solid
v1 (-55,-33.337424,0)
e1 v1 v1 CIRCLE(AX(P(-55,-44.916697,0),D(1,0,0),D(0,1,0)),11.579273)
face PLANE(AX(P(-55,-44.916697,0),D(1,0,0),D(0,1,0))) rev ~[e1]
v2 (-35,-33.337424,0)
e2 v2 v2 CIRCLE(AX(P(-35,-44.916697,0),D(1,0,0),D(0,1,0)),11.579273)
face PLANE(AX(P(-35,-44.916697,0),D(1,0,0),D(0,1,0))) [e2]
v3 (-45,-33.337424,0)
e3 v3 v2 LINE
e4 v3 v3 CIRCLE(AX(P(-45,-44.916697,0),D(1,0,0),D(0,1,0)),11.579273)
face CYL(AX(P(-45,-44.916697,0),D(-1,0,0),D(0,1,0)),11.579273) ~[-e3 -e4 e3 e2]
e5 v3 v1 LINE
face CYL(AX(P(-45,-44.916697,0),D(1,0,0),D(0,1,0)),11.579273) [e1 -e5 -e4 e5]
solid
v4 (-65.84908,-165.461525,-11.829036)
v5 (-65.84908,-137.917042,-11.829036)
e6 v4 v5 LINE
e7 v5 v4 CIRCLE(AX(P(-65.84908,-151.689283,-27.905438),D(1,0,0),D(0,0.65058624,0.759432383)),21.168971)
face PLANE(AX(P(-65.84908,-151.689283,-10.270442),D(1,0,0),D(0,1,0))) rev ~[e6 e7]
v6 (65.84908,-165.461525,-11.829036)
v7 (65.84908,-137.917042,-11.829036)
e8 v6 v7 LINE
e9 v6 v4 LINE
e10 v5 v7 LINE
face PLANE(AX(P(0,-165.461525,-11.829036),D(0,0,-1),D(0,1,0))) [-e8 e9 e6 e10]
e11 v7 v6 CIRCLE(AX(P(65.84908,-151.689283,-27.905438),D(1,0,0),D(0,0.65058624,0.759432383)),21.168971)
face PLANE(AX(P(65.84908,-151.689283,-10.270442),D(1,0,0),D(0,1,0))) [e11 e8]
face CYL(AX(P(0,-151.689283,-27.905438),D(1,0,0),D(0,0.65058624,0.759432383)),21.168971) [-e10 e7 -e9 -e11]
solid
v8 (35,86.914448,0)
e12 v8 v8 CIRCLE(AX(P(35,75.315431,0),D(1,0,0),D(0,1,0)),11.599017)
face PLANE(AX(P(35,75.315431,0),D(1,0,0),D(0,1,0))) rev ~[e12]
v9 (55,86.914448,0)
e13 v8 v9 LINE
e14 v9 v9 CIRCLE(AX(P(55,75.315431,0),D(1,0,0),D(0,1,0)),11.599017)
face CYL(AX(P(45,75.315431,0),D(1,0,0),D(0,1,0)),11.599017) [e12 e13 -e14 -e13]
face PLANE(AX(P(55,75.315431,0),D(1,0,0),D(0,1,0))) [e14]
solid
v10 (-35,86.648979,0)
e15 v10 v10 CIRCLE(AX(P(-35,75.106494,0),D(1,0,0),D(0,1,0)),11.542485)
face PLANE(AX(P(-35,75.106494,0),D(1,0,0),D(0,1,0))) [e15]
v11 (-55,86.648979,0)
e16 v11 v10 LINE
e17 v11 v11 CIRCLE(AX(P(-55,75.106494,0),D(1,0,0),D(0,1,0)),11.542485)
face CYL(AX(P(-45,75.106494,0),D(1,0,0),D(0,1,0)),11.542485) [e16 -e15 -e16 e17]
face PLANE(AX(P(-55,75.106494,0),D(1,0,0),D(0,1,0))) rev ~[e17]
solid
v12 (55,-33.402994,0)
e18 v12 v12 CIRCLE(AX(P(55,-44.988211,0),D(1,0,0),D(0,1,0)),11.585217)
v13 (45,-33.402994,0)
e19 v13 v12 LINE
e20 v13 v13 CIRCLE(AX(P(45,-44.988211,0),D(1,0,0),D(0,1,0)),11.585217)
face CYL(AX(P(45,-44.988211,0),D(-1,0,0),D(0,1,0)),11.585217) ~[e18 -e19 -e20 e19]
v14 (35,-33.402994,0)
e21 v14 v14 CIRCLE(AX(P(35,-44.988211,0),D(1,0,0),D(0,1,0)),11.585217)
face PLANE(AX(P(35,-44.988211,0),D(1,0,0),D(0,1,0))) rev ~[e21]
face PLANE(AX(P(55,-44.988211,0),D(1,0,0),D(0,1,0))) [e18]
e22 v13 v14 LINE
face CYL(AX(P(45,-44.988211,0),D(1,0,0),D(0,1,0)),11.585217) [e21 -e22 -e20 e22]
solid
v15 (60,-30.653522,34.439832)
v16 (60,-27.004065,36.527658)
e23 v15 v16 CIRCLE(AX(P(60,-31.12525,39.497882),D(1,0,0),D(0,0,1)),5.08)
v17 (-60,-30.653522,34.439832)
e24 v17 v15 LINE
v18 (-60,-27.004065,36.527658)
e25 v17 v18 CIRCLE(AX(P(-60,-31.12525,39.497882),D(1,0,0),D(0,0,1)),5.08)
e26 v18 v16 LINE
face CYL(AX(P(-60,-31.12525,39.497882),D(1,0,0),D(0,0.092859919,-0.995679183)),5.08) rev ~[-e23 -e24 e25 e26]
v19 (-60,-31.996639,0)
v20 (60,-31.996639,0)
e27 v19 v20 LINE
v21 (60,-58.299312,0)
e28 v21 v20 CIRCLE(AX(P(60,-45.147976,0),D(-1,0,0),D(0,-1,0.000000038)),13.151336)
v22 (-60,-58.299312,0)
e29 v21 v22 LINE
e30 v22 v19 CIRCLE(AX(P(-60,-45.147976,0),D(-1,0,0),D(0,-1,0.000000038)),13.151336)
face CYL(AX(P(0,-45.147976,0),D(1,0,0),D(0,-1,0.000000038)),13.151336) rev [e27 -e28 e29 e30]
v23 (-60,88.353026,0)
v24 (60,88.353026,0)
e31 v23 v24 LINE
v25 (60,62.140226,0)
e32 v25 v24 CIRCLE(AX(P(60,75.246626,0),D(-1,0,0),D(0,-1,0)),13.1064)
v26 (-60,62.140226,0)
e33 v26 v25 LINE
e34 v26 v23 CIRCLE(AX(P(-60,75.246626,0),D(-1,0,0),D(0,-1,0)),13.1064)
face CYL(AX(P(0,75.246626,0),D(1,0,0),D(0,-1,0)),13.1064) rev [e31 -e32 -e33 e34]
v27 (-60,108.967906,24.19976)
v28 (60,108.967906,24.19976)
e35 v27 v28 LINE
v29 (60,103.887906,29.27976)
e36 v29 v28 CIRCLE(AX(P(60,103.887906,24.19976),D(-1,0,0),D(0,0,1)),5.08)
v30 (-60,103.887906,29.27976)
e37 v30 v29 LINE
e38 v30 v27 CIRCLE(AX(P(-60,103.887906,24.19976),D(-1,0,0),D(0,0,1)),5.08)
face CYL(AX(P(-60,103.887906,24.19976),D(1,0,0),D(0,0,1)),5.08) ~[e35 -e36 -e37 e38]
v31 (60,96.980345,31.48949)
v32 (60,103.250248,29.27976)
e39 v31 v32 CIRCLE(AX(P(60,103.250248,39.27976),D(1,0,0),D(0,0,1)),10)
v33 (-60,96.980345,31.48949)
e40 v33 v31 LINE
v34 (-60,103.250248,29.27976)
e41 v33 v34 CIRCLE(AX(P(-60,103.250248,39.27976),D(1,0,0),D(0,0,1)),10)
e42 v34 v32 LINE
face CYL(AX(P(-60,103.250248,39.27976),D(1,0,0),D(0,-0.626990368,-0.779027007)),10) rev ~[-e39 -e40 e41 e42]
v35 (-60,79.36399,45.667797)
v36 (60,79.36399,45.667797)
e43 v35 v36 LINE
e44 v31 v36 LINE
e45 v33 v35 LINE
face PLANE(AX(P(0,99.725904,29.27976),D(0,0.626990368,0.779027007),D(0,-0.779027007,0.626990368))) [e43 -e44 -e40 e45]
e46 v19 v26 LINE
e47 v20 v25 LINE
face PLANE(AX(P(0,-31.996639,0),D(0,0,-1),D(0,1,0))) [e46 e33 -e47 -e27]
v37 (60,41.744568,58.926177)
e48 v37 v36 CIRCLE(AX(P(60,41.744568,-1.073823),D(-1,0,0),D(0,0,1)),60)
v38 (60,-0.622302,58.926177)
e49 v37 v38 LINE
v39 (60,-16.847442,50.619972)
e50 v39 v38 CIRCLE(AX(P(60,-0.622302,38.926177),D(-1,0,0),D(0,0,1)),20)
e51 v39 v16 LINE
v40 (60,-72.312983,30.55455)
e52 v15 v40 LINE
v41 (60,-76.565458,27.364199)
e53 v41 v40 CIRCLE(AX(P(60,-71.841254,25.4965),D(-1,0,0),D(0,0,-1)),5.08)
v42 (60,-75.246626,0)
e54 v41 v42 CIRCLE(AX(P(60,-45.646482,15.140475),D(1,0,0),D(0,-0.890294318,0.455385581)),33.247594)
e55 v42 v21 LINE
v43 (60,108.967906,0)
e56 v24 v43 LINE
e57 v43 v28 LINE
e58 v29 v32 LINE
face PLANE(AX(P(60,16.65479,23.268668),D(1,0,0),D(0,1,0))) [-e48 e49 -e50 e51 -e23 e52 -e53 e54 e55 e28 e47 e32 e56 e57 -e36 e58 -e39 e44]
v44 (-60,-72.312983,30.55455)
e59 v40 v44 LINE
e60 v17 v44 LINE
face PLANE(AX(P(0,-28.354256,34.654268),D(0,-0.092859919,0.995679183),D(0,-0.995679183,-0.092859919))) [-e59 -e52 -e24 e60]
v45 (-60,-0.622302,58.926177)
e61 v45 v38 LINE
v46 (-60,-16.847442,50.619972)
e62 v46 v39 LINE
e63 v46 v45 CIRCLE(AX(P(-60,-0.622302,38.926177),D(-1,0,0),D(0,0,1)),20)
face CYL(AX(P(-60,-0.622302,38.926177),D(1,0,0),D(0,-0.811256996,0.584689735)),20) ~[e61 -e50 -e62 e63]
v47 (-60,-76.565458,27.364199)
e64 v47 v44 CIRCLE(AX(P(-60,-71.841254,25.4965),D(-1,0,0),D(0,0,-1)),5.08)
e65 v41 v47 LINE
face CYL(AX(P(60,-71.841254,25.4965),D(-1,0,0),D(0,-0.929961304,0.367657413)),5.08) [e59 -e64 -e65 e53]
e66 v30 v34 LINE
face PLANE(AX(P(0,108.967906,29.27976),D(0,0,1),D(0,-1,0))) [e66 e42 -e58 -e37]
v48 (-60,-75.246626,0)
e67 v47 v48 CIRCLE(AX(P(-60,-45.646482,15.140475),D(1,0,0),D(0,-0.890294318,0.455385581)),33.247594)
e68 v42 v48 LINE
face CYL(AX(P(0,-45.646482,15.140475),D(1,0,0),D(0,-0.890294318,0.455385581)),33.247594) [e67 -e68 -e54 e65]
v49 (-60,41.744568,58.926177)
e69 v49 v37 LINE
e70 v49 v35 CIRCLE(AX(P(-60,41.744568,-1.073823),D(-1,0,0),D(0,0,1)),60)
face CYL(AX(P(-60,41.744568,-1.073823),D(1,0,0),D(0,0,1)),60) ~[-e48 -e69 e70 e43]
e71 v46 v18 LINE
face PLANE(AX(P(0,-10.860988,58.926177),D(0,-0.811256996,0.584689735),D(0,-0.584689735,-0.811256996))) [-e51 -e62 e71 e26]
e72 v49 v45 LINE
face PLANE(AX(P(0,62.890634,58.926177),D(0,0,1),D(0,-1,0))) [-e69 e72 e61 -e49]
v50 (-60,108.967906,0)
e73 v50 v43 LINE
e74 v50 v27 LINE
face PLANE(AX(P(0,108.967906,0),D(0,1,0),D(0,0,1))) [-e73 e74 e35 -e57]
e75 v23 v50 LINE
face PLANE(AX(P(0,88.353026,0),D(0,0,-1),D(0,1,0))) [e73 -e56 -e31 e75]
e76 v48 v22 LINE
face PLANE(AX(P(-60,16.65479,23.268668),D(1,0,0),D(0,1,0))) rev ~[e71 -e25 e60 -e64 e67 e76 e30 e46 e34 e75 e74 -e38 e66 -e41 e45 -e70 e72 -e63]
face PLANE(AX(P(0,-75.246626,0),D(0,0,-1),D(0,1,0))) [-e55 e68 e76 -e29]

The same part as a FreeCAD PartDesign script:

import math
import FreeCAD as App
import Part
import Sketcher

V = App.Vector
Q = App.Units.Quantity


def edges_at(feature, points):
    """Names of the edges that pass closest to the given points."""
    edges = feature.Shape.Edges
    near = lambda p: min(range(len(edges)), key=lambda i: edges[i].distToShape(Part.Vertex(*p))[0])
    return sorted({f"Edge{near(p) + 1}" for p in points})

doc = App.newDocument("Part")
body = doc.addObject("PartDesign::Body", "Body")

sketch1 = body.newObject("Sketcher::SketchObject", "Sketch")
sketch1.AttachmentSupport = (doc.getObject("YZ_Plane"), [""])
sketch1.MapMode = "FlatFace"
sketch1.addGeometry([
    Part.ArcOfCircle(Part.Circle(V(-45.147976, 0, 0), V(0, 0, 1), 13.151336), math.radians(0.000002), math.radians(179.999998)),
    Part.LineSegment(V(-31.996639, 0, 0), V(62.140226, 0, 0)),
    Part.ArcOfCircle(Part.Circle(V(75.246626, 0, 0), V(0, 0, 1), 13.1064), math.radians(0), math.radians(180)),
    Part.LineSegment(V(88.353026, 0, 0), V(108.967906, 0, 0)),
    Part.LineSegment(V(108.967906, 0, 0), V(108.967906, 29.27976, 0)),
    Part.LineSegment(V(108.967906, 29.27976, 0), V(99.725904, 29.27976, 0)),
    Part.LineSegment(V(99.725904, 29.27976, 0), V(62.890634, 58.926177, 0)),
    Part.LineSegment(V(62.890634, 58.926177, 0), V(-10.860988, 58.926177, 0)),
    Part.LineSegment(V(-10.860988, 58.926177, 0), V(-28.354256, 34.654268, 0)),
    Part.LineSegment(V(-28.354256, 34.654268, 0), V(-75.246626, 30.28095, 0)),
    Part.ArcOfCircle(Part.Circle(V(-45.646482, 15.140475, 0), V(0, 0, 1), 33.247594), math.radians(152.910254), math.radians(207.089746)),
    Part.LineSegment(V(-75.246626, 0, 0), V(-58.299312, 0, 0)),
], False)
sketch1.addConstraint([
    Sketcher.Constraint("Coincident", 0, 1, 1, 1),
    Sketcher.Constraint("Coincident", 1, 2, 2, 2),
    Sketcher.Constraint("Coincident", 2, 1, 3, 1),
    Sketcher.Constraint("Coincident", 3, 2, 4, 1),
    Sketcher.Constraint("Coincident", 4, 2, 5, 1),
    Sketcher.Constraint("Coincident", 5, 2, 6, 1),
    Sketcher.Constraint("Coincident", 6, 2, 7, 1),
    Sketcher.Constraint("Coincident", 7, 2, 8, 1),
    Sketcher.Constraint("Coincident", 8, 2, 9, 1),
    Sketcher.Constraint("Coincident", 9, 2, 10, 1),
    Sketcher.Constraint("Coincident", 10, 2, 11, 1),
    Sketcher.Constraint("Coincident", 11, 2, 0, 2),
    Sketcher.Constraint("Horizontal", 1),
    Sketcher.Constraint("Horizontal", 3),
    Sketcher.Constraint("Vertical", 4),
    Sketcher.Constraint("Horizontal", 5),
    Sketcher.Constraint("Horizontal", 7),
    Sketcher.Constraint("Horizontal", 11),
    Sketcher.Constraint("PointOnObject", 0, 3, -1),
    Sketcher.Constraint("PointOnObject", 2, 3, -1),
    Sketcher.Constraint("PointOnObject", 0, 1, -1),
    Sketcher.Constraint("PointOnObject", 2, 1, -1),
    Sketcher.Constraint("PointOnObject", 10, 2, -1),
    Sketcher.Constraint("Vertical", 9, 2, 10, 2),
    Sketcher.Constraint("Radius", 2, Q("13.1064 mm")),
    Sketcher.Constraint("DistanceX", 5, 2, 5, 1, Q("9.242002 mm")),
    Sketcher.Constraint("Radius", 0, Q("13.151336 mm")),
    Sketcher.Constraint("Radius", 10, Q("33.247594 mm")),
    Sketcher.Constraint("DistanceX", 0, 3, 2, 1, Q("133.501002 mm")),
    Sketcher.Constraint("DistanceX", 3, 1, 3, 2, Q("20.61488 mm")),
    Sketcher.Constraint("DistanceX", 7, 2, 7, 1, Q("73.751622 mm")),
    Sketcher.Constraint("DistanceY", 4, 1, 4, 2, Q("29.27976 mm")),
    Sketcher.Constraint("Distance", 6, Q("47.283688 mm")),
    Sketcher.Constraint("Distance", 8, Q("29.91889 mm")),
    Sketcher.Constraint("DistanceX", 11, 1, 11, 2, Q("16.947314 mm")),
    Sketcher.Constraint("DistanceX", 10, 3, -1, 1, Q("45.646482 mm")),
    Sketcher.Constraint("DistanceX", 0, 1, -1, 1, Q("31.996639 mm")),
    Sketcher.Constraint("DistanceX", 7, 2, -1, 1, Q("10.860988 mm")),
    Sketcher.Constraint("DistanceY", -1, 1, 8, 2, Q("34.654268 mm")),
])
pad1 = body.newObject("PartDesign::Pad", "Pad")
pad1.Profile = sketch1
pad1.Length = 120
pad1.Midplane = True
doc.recompute()

fillet = body.newObject("PartDesign::Fillet", "Fillet")
fillet.Base = (pad1, edges_at(pad1, [(0, -75.247, 30.281), (0, -28.354, 34.654)]))
fillet.Radius = 5.08
doc.recompute()

fillet2 = body.newObject("PartDesign::Fillet", "Fillet001")
fillet2.Base = (fillet, edges_at(fillet, [(0, -10.861, 58.926)]))
fillet2.Radius = 20
doc.recompute()

fillet3 = body.newObject("PartDesign::Fillet", "Fillet002")
fillet3.Base = (fillet2, edges_at(fillet2, [(0, 62.891, 58.926)]))
fillet3.Radius = 60
doc.recompute()

fillet4 = body.newObject("PartDesign::Fillet", "Fillet003")
fillet4.Base = (fillet3, edges_at(fillet3, [(0, 99.726, 29.28)]))
fillet4.Radius = 10
doc.recompute()

fillet5 = body.newObject("PartDesign::Fillet", "Fillet004")
fillet5.Base = (fillet4, edges_at(fillet4, [(0, 108.968, 29.28)]))
fillet5.Radius = 5.08
body2 = doc.addObject("PartDesign::Body", "Body001")
body2.AllowCompound = True

sketch2 = body2.newObject("Sketcher::SketchObject", "Sketch001")
sketch2.AttachmentSupport = (doc.getObject("YZ_Plane001"), [""])
sketch2.MapMode = "FlatFace"
sketch2.AttachmentOffset = App.Placement(V(0, 0, 45), App.Rotation())
sketch2.addGeometry([
    Part.Circle(V(-44.988211, 0, 0), V(0, 0, 1), 11.585217),
    Part.Circle(V(75.315431, 0, 0), V(0, 0, 1), 11.599017),
], False)
sketch2.addConstraint([
    Sketcher.Constraint("PointOnObject", 0, 3, -1),
    Sketcher.Constraint("PointOnObject", 1, 3, -1),
    Sketcher.Constraint("Diameter", 0, Q("23.170434 mm")),
    Sketcher.Constraint("Diameter", 1, Q("23.198034 mm")),
    Sketcher.Constraint("DistanceX", 0, 3, -1, 1, Q("44.988211 mm")),
    Sketcher.Constraint("DistanceX", -1, 1, 1, 3, Q("75.315431 mm")),
])
pad2 = body2.newObject("PartDesign::Pad", "Pad001")
pad2.Profile = sketch2
pad2.Length = 20
pad2.Midplane = True
body3 = doc.addObject("PartDesign::Body", "Body002")

sketch3 = body3.newObject("Sketcher::SketchObject", "Sketch002")
sketch3.AttachmentSupport = (doc.getObject("YZ_Plane002"), [""])
sketch3.MapMode = "FlatFace"
sketch3.addGeometry([
    Part.LineSegment(V(-165.461525, -11.829036, 0), V(-137.917042, -11.829036, 0)),
    Part.ArcOfCircle(Part.Circle(V(-151.689283, -27.905438, 0), V(0, 0, 1), 21.168971), math.radians(49.414184), math.radians(130.585816)),
], False)
sketch3.addConstraint([
    Sketcher.Constraint("Coincident", 0, 1, 1, 2),
    Sketcher.Constraint("Coincident", 1, 1, 0, 2),
    Sketcher.Constraint("Horizontal", 0),
    Sketcher.Constraint("Radius", 1, Q("21.168971 mm")),
    Sketcher.Constraint("DistanceX", 0, 1, 0, 2, Q("27.544483 mm")),
    Sketcher.Constraint("DistanceY", 1, 3, -1, 1, Q("27.905438 mm")),
    Sketcher.Constraint("DistanceX", 1, 1, -1, 1, Q("137.917042 mm")),
])
pad3 = body3.newObject("PartDesign::Pad", "Pad002")
pad3.Profile = sketch3
pad3.Length = 131.69816
pad3.Midplane = True
body4 = doc.addObject("PartDesign::Body", "Body003")
body4.AllowCompound = True

sketch4 = body4.newObject("Sketcher::SketchObject", "Sketch003")
sketch4.AttachmentSupport = (doc.getObject("YZ_Plane003"), [""])
sketch4.MapMode = "FlatFace"
sketch4.AttachmentOffset = App.Placement(V(0, 0, -45), App.Rotation())
sketch4.addGeometry([
    Part.Circle(V(-44.916697, 0, 0), V(0, 0, 1), 11.579273),
    Part.Circle(V(75.106494, 0, 0), V(0, 0, 1), 11.542485),
], False)
sketch4.addConstraint([
    Sketcher.Constraint("PointOnObject", 0, 3, -1),
    Sketcher.Constraint("PointOnObject", 1, 3, -1),
    Sketcher.Constraint("Diameter", 1, Q("23.08497 mm")),
    Sketcher.Constraint("Diameter", 0, Q("23.158546 mm")),
    Sketcher.Constraint("DistanceX", 0, 3, 1, 3, Q("120.023191 mm")),
    Sketcher.Constraint("DistanceX", 0, 3, -1, 1, Q("44.916697 mm")),
])
pad4 = body4.newObject("PartDesign::Pad", "Pad003")
pad4.Profile = sketch4
pad4.Length = 20
pad4.Midplane = True

doc.recompute()
